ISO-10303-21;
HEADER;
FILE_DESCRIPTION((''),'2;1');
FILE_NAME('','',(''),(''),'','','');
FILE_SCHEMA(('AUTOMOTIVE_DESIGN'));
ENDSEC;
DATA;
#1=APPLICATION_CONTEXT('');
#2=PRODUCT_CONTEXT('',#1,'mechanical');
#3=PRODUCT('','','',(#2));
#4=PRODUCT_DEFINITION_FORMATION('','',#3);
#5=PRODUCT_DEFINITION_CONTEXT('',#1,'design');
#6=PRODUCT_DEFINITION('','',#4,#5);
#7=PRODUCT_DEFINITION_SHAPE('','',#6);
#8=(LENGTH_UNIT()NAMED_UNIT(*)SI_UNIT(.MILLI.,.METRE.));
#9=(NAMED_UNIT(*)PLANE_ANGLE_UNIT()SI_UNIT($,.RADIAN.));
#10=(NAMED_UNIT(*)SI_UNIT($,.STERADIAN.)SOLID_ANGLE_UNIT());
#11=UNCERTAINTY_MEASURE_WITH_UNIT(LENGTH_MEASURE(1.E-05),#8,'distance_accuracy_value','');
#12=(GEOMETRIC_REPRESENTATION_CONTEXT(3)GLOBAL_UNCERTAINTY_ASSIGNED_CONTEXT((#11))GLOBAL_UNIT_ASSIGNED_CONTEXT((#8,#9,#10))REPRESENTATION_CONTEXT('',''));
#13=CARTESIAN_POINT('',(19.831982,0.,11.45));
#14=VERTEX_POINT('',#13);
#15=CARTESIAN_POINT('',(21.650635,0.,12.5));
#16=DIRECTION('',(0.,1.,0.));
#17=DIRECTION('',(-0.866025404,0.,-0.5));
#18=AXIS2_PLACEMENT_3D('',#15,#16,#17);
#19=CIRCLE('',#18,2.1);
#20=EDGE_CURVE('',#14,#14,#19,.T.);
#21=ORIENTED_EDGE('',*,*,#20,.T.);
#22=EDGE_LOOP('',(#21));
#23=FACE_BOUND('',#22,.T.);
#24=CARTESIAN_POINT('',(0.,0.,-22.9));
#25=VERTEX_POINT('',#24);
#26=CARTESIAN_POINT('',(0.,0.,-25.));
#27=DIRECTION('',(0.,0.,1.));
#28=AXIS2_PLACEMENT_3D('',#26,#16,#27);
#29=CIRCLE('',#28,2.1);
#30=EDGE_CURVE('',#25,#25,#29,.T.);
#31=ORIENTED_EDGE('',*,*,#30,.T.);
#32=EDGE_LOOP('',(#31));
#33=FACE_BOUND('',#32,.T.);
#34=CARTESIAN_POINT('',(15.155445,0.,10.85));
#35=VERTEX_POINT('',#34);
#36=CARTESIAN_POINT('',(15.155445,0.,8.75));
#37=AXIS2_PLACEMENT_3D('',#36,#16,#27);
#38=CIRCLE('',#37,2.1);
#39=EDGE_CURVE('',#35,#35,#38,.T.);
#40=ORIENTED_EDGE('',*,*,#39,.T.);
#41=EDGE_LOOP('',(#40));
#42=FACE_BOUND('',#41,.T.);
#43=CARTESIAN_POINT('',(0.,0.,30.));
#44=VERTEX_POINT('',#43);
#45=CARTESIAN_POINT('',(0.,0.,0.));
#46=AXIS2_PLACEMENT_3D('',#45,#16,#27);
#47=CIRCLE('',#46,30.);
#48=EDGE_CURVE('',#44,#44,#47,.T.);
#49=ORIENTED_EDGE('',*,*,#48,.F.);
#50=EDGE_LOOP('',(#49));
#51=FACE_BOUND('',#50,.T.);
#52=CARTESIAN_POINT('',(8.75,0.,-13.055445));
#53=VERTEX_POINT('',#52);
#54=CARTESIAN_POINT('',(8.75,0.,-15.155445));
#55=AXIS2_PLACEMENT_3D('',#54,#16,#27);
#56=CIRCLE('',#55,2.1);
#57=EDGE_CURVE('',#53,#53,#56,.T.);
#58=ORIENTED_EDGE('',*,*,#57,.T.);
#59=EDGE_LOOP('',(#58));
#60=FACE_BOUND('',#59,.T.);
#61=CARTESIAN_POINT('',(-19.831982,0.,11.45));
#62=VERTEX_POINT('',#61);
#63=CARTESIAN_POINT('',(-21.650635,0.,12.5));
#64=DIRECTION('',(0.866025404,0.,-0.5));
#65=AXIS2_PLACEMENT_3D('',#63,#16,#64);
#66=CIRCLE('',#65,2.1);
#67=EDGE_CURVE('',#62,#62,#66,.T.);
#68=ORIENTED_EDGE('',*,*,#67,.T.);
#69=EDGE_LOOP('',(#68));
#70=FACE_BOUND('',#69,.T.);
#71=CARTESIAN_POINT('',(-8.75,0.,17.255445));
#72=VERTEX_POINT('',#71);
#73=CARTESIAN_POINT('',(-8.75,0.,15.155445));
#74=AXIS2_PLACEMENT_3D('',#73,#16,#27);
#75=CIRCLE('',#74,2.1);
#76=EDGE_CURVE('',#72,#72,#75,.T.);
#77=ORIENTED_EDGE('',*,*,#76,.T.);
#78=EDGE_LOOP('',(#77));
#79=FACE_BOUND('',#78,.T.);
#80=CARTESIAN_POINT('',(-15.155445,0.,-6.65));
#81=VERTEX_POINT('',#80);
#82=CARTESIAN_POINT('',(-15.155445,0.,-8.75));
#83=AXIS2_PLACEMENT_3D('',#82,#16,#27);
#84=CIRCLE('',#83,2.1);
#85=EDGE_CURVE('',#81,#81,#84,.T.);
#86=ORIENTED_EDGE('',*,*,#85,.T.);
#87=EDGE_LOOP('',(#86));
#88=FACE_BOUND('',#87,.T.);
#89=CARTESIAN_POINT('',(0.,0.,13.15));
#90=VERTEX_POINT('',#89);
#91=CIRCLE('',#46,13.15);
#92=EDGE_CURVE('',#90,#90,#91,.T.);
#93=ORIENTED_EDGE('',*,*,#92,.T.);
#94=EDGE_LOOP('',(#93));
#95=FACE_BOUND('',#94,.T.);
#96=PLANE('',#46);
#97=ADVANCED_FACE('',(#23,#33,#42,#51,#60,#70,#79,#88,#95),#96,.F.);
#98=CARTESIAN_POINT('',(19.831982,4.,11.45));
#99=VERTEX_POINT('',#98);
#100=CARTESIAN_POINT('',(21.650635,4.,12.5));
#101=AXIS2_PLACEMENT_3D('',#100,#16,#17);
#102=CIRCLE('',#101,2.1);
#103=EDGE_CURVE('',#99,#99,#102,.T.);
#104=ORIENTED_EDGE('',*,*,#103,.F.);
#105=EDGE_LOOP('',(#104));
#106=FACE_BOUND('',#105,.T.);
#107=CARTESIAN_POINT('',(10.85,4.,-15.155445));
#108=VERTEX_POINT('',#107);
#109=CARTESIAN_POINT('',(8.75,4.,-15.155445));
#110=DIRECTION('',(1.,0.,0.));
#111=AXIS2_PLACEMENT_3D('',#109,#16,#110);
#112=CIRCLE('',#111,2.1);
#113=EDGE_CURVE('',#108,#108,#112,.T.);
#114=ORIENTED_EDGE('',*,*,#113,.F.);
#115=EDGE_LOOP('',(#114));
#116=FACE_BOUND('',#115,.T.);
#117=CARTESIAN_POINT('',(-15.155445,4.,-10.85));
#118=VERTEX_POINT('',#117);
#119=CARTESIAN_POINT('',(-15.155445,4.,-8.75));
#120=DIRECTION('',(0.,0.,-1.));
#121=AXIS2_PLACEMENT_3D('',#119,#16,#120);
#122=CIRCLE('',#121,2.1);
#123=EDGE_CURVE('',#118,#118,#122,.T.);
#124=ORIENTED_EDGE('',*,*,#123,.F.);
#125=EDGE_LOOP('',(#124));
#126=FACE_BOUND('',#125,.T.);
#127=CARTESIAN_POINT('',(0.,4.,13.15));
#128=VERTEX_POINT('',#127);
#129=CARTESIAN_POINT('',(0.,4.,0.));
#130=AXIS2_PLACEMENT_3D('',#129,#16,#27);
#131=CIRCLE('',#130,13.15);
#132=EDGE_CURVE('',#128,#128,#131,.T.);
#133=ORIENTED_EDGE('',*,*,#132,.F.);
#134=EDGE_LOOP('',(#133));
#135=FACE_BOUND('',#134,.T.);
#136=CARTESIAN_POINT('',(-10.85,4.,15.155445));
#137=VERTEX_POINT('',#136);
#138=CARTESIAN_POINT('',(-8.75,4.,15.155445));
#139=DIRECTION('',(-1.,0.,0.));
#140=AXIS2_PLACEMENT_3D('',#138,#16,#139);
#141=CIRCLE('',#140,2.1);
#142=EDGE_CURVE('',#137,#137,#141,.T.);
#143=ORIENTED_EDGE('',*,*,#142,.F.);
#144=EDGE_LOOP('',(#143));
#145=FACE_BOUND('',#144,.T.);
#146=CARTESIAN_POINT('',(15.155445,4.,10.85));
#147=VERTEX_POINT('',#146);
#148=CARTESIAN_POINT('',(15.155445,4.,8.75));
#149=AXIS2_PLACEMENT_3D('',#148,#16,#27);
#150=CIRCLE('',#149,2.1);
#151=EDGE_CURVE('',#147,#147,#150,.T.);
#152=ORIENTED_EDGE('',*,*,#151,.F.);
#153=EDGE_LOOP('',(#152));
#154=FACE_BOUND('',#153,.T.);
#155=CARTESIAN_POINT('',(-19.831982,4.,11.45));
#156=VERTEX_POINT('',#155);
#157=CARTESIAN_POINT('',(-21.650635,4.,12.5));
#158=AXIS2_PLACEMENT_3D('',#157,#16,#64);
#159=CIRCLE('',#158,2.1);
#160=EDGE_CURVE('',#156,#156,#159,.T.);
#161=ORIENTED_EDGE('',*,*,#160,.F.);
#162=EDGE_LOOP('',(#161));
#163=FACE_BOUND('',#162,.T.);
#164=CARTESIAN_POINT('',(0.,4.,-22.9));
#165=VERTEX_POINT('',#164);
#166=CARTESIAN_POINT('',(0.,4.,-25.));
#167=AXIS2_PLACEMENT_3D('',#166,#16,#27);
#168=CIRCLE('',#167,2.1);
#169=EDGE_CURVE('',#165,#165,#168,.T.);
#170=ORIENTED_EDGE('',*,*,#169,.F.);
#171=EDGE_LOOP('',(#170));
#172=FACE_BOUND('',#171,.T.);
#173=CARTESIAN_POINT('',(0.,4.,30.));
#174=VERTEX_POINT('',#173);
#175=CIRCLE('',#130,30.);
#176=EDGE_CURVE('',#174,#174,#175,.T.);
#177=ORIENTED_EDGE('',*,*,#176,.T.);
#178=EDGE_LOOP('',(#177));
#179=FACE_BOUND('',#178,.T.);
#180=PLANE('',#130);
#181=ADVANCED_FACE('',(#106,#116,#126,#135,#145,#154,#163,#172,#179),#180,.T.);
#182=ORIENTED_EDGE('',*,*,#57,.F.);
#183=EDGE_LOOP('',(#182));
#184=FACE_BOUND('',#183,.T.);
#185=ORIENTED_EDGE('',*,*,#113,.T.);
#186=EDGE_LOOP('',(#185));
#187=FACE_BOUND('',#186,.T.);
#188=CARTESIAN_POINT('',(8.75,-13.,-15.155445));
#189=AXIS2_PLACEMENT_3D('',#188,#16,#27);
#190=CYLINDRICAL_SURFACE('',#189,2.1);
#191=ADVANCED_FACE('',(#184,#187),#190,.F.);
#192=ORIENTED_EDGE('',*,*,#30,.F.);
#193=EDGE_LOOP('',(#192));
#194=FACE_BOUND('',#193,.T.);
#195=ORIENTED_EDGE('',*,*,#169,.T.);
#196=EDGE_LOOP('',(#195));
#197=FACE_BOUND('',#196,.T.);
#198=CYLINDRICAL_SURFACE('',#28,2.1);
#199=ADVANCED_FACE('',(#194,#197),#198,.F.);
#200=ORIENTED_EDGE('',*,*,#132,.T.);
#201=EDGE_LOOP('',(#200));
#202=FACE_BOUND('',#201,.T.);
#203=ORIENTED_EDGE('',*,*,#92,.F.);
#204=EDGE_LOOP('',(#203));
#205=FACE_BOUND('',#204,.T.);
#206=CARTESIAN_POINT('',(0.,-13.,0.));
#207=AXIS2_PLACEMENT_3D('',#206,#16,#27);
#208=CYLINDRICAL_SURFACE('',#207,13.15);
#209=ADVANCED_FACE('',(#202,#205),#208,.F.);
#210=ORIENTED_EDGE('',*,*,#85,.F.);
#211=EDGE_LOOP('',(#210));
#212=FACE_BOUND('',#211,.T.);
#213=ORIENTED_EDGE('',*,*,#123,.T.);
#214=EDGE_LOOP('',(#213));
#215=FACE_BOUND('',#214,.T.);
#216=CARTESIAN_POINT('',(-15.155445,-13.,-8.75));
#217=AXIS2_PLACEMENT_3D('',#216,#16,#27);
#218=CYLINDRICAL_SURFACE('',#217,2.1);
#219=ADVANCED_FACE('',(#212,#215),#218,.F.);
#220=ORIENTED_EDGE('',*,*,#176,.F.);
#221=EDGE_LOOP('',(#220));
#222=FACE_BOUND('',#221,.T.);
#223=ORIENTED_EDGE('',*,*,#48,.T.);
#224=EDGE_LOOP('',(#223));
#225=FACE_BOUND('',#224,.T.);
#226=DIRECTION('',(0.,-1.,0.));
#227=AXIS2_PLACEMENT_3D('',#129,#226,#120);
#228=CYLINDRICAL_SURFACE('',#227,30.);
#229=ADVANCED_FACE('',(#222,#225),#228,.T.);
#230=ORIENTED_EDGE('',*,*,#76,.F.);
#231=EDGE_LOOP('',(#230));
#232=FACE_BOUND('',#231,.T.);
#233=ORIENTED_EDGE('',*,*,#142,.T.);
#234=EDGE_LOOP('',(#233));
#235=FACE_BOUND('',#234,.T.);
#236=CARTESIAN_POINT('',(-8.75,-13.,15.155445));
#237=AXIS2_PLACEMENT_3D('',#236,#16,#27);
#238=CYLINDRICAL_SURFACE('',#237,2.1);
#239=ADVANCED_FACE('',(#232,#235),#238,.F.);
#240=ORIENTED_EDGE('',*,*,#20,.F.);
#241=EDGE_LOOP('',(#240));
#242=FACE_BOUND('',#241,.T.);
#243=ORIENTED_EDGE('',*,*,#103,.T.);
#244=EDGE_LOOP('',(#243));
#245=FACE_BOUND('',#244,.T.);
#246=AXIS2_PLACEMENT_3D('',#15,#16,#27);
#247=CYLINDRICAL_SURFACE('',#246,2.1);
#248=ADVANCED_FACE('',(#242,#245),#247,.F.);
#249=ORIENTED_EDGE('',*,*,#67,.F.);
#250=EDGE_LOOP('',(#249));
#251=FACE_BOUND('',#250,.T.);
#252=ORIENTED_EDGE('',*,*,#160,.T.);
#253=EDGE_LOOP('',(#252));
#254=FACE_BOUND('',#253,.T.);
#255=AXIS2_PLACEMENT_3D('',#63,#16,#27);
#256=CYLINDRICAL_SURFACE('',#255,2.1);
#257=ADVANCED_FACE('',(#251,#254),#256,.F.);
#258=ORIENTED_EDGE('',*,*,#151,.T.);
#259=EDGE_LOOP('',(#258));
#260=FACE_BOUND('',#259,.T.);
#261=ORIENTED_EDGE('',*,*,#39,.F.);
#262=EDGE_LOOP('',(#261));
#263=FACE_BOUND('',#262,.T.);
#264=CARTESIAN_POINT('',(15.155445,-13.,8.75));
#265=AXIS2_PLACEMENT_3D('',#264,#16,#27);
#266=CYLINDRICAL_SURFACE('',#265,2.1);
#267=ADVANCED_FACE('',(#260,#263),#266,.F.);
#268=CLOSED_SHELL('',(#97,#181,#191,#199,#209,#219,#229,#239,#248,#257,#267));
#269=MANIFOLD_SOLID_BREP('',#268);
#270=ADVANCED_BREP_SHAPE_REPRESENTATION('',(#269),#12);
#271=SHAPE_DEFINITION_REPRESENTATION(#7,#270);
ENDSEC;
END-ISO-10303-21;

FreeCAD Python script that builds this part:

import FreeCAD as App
import Part
import Sketcher

V = App.Vector
Q = App.Units.Quantity

doc = App.newDocument("Part")
body = doc.addObject("PartDesign::Body", "Body")

# Sketch on XZ plane
sketch1 = body.newObject("Sketcher::SketchObject", "Sketch")
sketch1.AttachmentSupport = (doc.getObject("XZ_Plane"), [""])
sketch1.MapMode = "FlatFace"
sketch1.addGeometry(Part.Circle(V(0, 0, 0), V(0, 0, 1), 30), False)
sketch1.addConstraint(Sketcher.Constraint("Coincident", 0, 3, -1, 1))
sketch1.addConstraint(Sketcher.Constraint("Diameter", 0, Q("60 mm")))
pad1 = body.newObject("PartDesign::Pad", "Pad")
pad1.Profile = sketch1
pad1.Length = 4
pad1.Reversed = True

# Sketch on XZ plane
sketch2 = body.newObject("Sketcher::SketchObject", "Sketch001")
sketch2.AttachmentSupport = (doc.getObject("XZ_Plane"), [""])
sketch2.MapMode = "FlatFace"
sketch2.AttachmentOffset = App.Placement(V(0, 0, -4), App.Rotation())
sketch2.addGeometry(Part.Circle(V(0, -25, 0), V(0, 0, 1), 2.1), False)
sketch2.addConstraint(Sketcher.Constraint("PointOnObject", 0, 3, -2))
sketch2.addConstraint(Sketcher.Constraint("Diameter", 0, Q("4.2 mm")))
sketch2.addConstraint(Sketcher.Constraint("DistanceY", 0, 3, -1, 1, Q("25 mm")))
pocket1 = body.newObject("PartDesign::Pocket", "Pocket")
pocket1.Profile = sketch2
pocket1.Length = 4
pocket1.Reversed = True
doc.recompute()

polarpattern = body.newObject("PartDesign::PolarPattern", "PolarPattern")
polarpattern.Originals = [pocket1]
polarpattern.Axis = (doc.getObject("Y_Axis"), [""])
polarpattern.Angle = 360
polarpattern.Occurrences = 3
body.Tip = polarpattern

# Sketch on XZ plane
sketch3 = body.newObject("Sketcher::SketchObject", "Sketch002")
sketch3.AttachmentSupport = (doc.getObject("XZ_Plane"), [""])
sketch3.MapMode = "FlatFace"
sketch3.AttachmentOffset = App.Placement(V(0, 0, -4), App.Rotation())
sketch3.addGeometry(Part.Circle(V(0, 0, 0), V(0, 0, 1), 13), False)
sketch3.addConstraint(Sketcher.Constraint("Coincident", 0, 3, -1, 1))
sketch3.addConstraint(Sketcher.Constraint("Diameter", 0, Q("26.3 mm")))
pocket2 = body.newObject("PartDesign::Pocket", "Pocket001")
pocket2.Profile = sketch3
pocket2.Length = 17
pocket2.Reversed = True

# Sketch on XZ plane
sketch4 = body.newObject("Sketcher::SketchObject", "Sketch003")
sketch4.AttachmentSupport = (doc.getObject("XZ_Plane"), [""])
sketch4.MapMode = "FlatFace"
sketch4.AttachmentOffset = App.Placement(V(0, 0, -4), App.Rotation())
sketch4.addGeometry(Part.Circle(V(15.2, 8.8, 0), V(0, 0, 1), 2.1), False)
sketch4.addConstraint(Sketcher.Constraint("Diameter", 0, Q("4.2 mm")))
sketch4.addConstraint(Sketcher.Constraint("DistanceY", -1, 1, 0, 3, Q("8.75 mm")))
sketch4.addConstraint(Sketcher.Constraint("DistanceX", -1, 1, 0, 3, Q("15.155445 mm")))
pocket3 = body.newObject("PartDesign::Pocket", "Pocket002")
pocket3.Profile = sketch4
pocket3.Length = 17
pocket3.Reversed = True
doc.recompute()

polarpattern2 = body.newObject("PartDesign::PolarPattern", "PolarPattern001")
polarpattern2.Originals = [pocket3]
polarpattern2.Axis = (doc.getObject("Y_Axis"), [""])
polarpattern2.Angle = 360
polarpattern2.Occurrences = 4
body.Tip = polarpattern2

doc.recompute()
